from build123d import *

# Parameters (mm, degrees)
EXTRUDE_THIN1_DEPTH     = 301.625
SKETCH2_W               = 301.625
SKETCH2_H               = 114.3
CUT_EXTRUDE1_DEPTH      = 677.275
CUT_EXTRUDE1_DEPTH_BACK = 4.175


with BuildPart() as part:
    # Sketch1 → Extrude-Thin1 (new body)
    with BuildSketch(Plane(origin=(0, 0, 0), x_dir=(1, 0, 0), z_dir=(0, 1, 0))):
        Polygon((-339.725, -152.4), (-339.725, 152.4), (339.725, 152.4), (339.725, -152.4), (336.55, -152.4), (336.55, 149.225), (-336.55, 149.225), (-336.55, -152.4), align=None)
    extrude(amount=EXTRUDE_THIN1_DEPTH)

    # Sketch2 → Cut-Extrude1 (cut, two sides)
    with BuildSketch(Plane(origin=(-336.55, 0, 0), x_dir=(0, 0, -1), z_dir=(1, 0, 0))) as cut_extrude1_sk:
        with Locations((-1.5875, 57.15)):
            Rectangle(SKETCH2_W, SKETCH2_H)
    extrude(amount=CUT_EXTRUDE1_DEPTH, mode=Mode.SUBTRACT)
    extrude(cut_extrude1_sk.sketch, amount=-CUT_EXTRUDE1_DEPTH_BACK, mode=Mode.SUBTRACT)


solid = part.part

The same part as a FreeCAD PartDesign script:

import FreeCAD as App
import Part
import Sketcher
from FreeCAD import Vector
Q = App.Units.Quantity


def add_polygon(sketch, points):
    """Adds a closed chain of lines whose ends are joined by coincident constraints."""
    first, n = sketch.GeometryCount, len(points)
    for a, b in zip(points, points[1:] + points[:1]):
        sketch.addGeometry(Part.LineSegment(App.Vector(*a, 0), App.Vector(*b, 0)), False)
    for i in range(n):
        sketch.addConstraint(Sketcher.Constraint("Coincident", first + i, 2, first + (i + 1) % n, 1))

doc = App.newDocument("Part")
body = doc.addObject("PartDesign::Body", "Body")

# Sketch on XZ plane
sketch1 = body.newObject("Sketcher::SketchObject", "Sketch")
sketch1.AttachmentSupport = (doc.getObject("XZ_Plane"), [""])
sketch1.MapMode = "FlatFace"
add_polygon(sketch1, [(-339.7, -152.4), (-339.7, 152.4), (-336.6, 152.4), (-336.6, -149.2), (336.6, -149.2), (336.6, 152.4), (339.7, 152.4), (339.7, -152.4)])  # lines 0-7
sketch1.addConstraint(Sketcher.Constraint("Vertical", 0))
sketch1.addConstraint(Sketcher.Constraint("Horizontal", 1))
sketch1.addConstraint(Sketcher.Constraint("Vertical", 2))
sketch1.addConstraint(Sketcher.Constraint("Horizontal", 3))
sketch1.addConstraint(Sketcher.Constraint("Vertical", 4))
sketch1.addConstraint(Sketcher.Constraint("Horizontal", 5))
sketch1.addConstraint(Sketcher.Constraint("Vertical", 6))
sketch1.addConstraint(Sketcher.Constraint("Horizontal", 7))
sketch1.addConstraint(Sketcher.Constraint("Symmetric", 0, 2, 6, 2, -1, 1))
sketch1.addConstraint(Sketcher.Constraint("Symmetric", 1, 2, 4, 2, -2))
sketch1.addConstraint(Sketcher.Constraint("DistanceY", 0, 1, 0, 2, Q("12 in")))
sketch1.addConstraint(Sketcher.Constraint("DistanceX", 3, 1, 3, 2, Q("26.5 in")))
sketch1.addConstraint(Sketcher.Constraint("DistanceX", 7, 2, 7, 1, Q("26.75 in")))
sketch1.addConstraint(Sketcher.Constraint("DistanceY", 2, 2, 2, 1, Q("11.875 in")))
pad1 = body.newObject("PartDesign::Pad", "Pad")
pad1.Profile = sketch1
pad1.Length = Q("11.875 in")
pad1.Reversed = True

# Sketch on YZ plane
sketch2 = body.newObject("Sketcher::SketchObject", "Sketch001")
sketch2.AttachmentSupport = (doc.getObject("YZ_Plane"), [""])
sketch2.MapMode = "FlatFace"
sketch2.AttachmentOffset = App.Placement(Vector(0, 0, -13.25 * 25.4), App.Rotation())
add_polygon(sketch2, [(114, 152), (0, 152), (0, -149), (114, -149)])  # lines 0-3
sketch2.addConstraint(Sketcher.Constraint("Horizontal", 0))
sketch2.addConstraint(Sketcher.Constraint("Vertical", 1))
sketch2.addConstraint(Sketcher.Constraint("Horizontal", 2))
sketch2.addConstraint(Sketcher.Constraint("Vertical", 3))
sketch2.addConstraint(Sketcher.Constraint("PointOnObject", 0, 2, -2))
sketch2.addConstraint(Sketcher.Constraint("DistanceX", 0, 2, 0, 1, Q("4.5 in")))
sketch2.addConstraint(Sketcher.Constraint("DistanceY", -1, 1, 0, 2, Q("6 in")))
sketch2.addConstraint(Sketcher.Constraint("DistanceY", 1, 2, 1, 1, Q("11.875 in")))
pocket1 = body.newObject("PartDesign::Pocket", "Pocket")
pocket1.Profile = sketch2
pocket1.Type = "ThroughAll"
pocket1.Midplane = True

doc.recompute()
